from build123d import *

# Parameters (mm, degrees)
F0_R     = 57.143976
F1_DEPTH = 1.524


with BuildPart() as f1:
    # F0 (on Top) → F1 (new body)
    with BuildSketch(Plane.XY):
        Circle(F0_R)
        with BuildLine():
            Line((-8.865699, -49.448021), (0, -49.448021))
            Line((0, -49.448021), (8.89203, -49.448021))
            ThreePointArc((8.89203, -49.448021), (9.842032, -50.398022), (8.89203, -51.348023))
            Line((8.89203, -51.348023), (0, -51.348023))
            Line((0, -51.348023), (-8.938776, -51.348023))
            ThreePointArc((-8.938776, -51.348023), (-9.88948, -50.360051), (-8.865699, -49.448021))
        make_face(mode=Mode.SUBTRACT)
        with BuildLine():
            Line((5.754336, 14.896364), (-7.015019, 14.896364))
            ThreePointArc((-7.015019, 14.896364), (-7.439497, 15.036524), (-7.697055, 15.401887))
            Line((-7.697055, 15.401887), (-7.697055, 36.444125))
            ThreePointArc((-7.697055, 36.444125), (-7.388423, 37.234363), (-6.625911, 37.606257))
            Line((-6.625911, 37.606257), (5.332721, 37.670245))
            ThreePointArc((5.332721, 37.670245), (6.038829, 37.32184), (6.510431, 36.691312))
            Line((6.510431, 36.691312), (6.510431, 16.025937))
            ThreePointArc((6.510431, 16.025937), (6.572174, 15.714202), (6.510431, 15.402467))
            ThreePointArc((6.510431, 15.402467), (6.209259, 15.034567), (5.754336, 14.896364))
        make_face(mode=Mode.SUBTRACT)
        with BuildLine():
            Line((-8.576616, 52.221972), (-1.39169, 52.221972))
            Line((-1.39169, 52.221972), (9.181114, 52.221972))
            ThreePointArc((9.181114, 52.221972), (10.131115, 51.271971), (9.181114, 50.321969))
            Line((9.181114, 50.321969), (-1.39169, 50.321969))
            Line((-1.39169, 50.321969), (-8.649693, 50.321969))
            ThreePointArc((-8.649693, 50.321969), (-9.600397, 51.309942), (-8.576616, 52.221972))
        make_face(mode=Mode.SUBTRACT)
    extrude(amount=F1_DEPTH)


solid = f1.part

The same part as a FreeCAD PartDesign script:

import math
import FreeCAD as App
import Part
import Sketcher
from FreeCAD import Vector

doc = App.newDocument("Part")
params = doc.addObject("Spreadsheet::Sheet", "Params")
for row, (alias, value) in enumerate([
    ("pad1_length", "0.06 in"),
], start=1):
    params.set(f"A{row}", alias)
    params.set(f"B{row}", "=" + value)
    params.setAlias(f"B{row}", alias)

body = doc.addObject("PartDesign::Body", "Body")

sketch1 = body.newObject("Sketcher::SketchObject", "Sketch")
sketch1.AttachmentSupport = (doc.getObject("XY_Plane"), [""])
sketch1.MapMode = "FlatFace"
sketch1.addGeometry(Part.Circle(Vector(0, 0, 0), Vector(0, 0, 1), 57.1), False)
sketch1.addGeometry(Part.ArcOfCircle(Part.Circle(Vector(-8.9, -50.4, 0), Vector(0, 0, 1), 1), math.radians(86), math.radians(270)), False)
sketch1.addGeometry(Part.LineSegment(Vector(-8.9, -49.4, 0), Vector(8.9, -49.4, 0)), False)
sketch1.addGeometry(Part.ArcOfCircle(Part.Circle(Vector(8.9, -50.4, 0), Vector(0, 0, 1), 1), math.radians(-90), math.radians(90)), False)
sketch1.addGeometry(Part.LineSegment(Vector(8.9, -51.3, 0), Vector(-8.9, -51.3, 0)), False)
sketch1.addGeometry(Part.ArcOfCircle(Part.Circle(Vector(5.8, 15.7, 0), Vector(0, 0, 1), 0.8), math.radians(-90), math.radians(-22)), False)
sketch1.addGeometry(Part.LineSegment(Vector(5.8, 14.9, 0), Vector(-7, 14.9, 0)), False)
sketch1.addGeometry(Part.ArcOfCircle(Part.Circle(Vector(-7, 15.6, 0), Vector(0, 0, 1), 0.7), math.radians(-163), math.radians(-90)), False)
sketch1.addGeometry(Part.LineSegment(Vector(-7.7, 15.4, 0), Vector(-7.7, 36.4, 0)), False)
sketch1.addGeometry(Part.ArcOfCircle(Part.Circle(Vector(-6.5, 36.4, 0), Vector(0, 0, 1), 1.2), math.radians(95), math.radians(180)), False)
sketch1.addGeometry(Part.LineSegment(Vector(-6.6, 37.6, 0), Vector(5.3, 37.7, 0)), False)
sketch1.addGeometry(Part.ArcOfCircle(Part.Circle(Vector(5, 36, 0), Vector(0, 0, 1), 1.7), math.radians(23), math.radians(77)), False)
sketch1.addGeometry(Part.LineSegment(Vector(6.5, 36.7, 0), Vector(6.5, 16, 0)), False)
sketch1.addGeometry(Part.ArcOfCircle(Part.Circle(Vector(5.8, 15.7, 0), Vector(0, 0, 1), 0.8), math.radians(-22), math.radians(22)), False)
sketch1.addGeometry(Part.ArcOfCircle(Part.Circle(Vector(-8.6, 51.3, 0), Vector(0, 0, 1), 1), math.radians(86), math.radians(270)), False)
sketch1.addGeometry(Part.LineSegment(Vector(-8.6, 52.2, 0), Vector(9.2, 52.2, 0)), False)
sketch1.addGeometry(Part.ArcOfCircle(Part.Circle(Vector(9.2, 51.3, 0), Vector(0, 0, 1), 1), math.radians(-90), math.radians(90)), False)
sketch1.addGeometry(Part.LineSegment(Vector(9.2, 50.3, 0), Vector(-8.6, 50.3, 0)), False)
sketch1.addConstraint(Sketcher.Constraint("Coincident", 1, 1, 2, 1))
sketch1.addConstraint(Sketcher.Constraint("Tangent", 2, 2, 3, 2))
sketch1.addConstraint(Sketcher.Constraint("Tangent", 3, 1, 4, 1))
sketch1.addConstraint(Sketcher.Constraint("Tangent", 4, 2, 1, 2))
sketch1.addConstraint(Sketcher.Constraint("Tangent", 5, 1, 6, 1))
sketch1.addConstraint(Sketcher.Constraint("Tangent", 6, 2, 7, 2))
sketch1.addConstraint(Sketcher.Constraint("Coincident", 7, 1, 8, 1))
sketch1.addConstraint(Sketcher.Constraint("Coincident", 8, 2, 9, 2))
sketch1.addConstraint(Sketcher.Constraint("Coincident", 9, 1, 10, 1))
sketch1.addConstraint(Sketcher.Constraint("Coincident", 10, 2, 11, 2))
sketch1.addConstraint(Sketcher.Constraint("Coincident", 11, 1, 12, 1))
sketch1.addConstraint(Sketcher.Constraint("Coincident", 12, 2, 13, 2))
sketch1.addConstraint(Sketcher.Constraint("Coincident", 13, 1, 5, 2))
sketch1.addConstraint(Sketcher.Constraint("Coincident", 14, 1, 15, 1))
sketch1.addConstraint(Sketcher.Constraint("Tangent", 15, 2, 16, 2))
sketch1.addConstraint(Sketcher.Constraint("Tangent", 16, 1, 17, 1))
sketch1.addConstraint(Sketcher.Constraint("Tangent", 17, 2, 14, 2))
sketch1.addConstraint(Sketcher.Constraint("Horizontal", 2))
sketch1.addConstraint(Sketcher.Constraint("Horizontal", 4))
sketch1.addConstraint(Sketcher.Constraint("Horizontal", 6))
sketch1.addConstraint(Sketcher.Constraint("Vertical", 8))
sketch1.addConstraint(Sketcher.Constraint("Vertical", 12))
sketch1.addConstraint(Sketcher.Constraint("Horizontal", 15))
sketch1.addConstraint(Sketcher.Constraint("Horizontal", 17))
sketch1.addConstraint(Sketcher.Constraint("Coincident", 0, 3, -1, 1))
sketch1.addConstraint(Sketcher.Constraint("Coincident", 13, 3, 5, 3))
sketch1.addConstraint(Sketcher.Constraint("Equal", 1, 14))
sketch1.addConstraint(Sketcher.Constraint("Equal", 3, 16))
sketch1.addConstraint(Sketcher.Constraint("Vertical", 12, 2, 13, 1))
sketch1.addConstraint(Sketcher.Constraint("Equal", 2, 15))
sketch1.addConstraint(Sketcher.Constraint("Radius", 3, 0.950001))
sketch1.addConstraint(Sketcher.Constraint("Diameter", 0, 114.287952))
sketch1.addConstraint(Sketcher.Constraint("Radius", 1, 0.951406))
sketch1.addConstraint(Sketcher.Constraint("Radius", 5, 0.817838))
sketch1.addConstraint(Sketcher.Constraint("Radius", 7, 0.712854))
sketch1.addConstraint(Sketcher.Constraint("Radius", 9, 1.165994))
sketch1.addConstraint(Sketcher.Constraint("Radius", 11, 1.689947))
sketch1.addConstraint(Sketcher.Constraint("DistanceX", 2, 1, 2, 2, 17.757729))
sketch1.addConstraint(Sketcher.Constraint("DistanceY", -1, 1, 5, 3, 15.714202))
sketch1.addConstraint(Sketcher.Constraint("DistanceX", 1, 1, -1, 1, 8.865699))
sketch1.addConstraint(Sketcher.Constraint("DistanceX", 6, 2, 6, 1, 12.769355))
sketch1.addConstraint(Sketcher.Constraint("DistanceY", 8, 1, 8, 2, 21.042238))
sketch1.addConstraint(Sketcher.Constraint("DistanceY", 12, 2, 12, 1, 20.665375))
sketch1.addConstraint(Sketcher.Constraint("DistanceY", 3, 3, -1, 1, 50.398022))
sketch1.addConstraint(Sketcher.Constraint("DistanceX", 7, 3, -1, 1, 7.015018))
sketch1.addConstraint(Sketcher.Constraint("DistanceX", 9, 3, -1, 1, 6.531061))
sketch1.addConstraint(Sketcher.Constraint("DistanceY", -1, 1, 16, 3, 51.271971))
sketch1.addConstraint(Sketcher.Constraint("DistanceX", 9, 1, -1, 1, 6.625911))
sketch1.addConstraint(Sketcher.Constraint("DistanceX", -1, 1, 10, 2, 5.332721))
sketch1.addConstraint(Sketcher.Constraint("DistanceX", -1, 1, 11, 1, 6.510431))
sketch1.addConstraint(Sketcher.Constraint("DistanceY", 7, 3, 9, 3, 20.83491))
sketch1.addConstraint(Sketcher.Constraint("DistanceY", 11, 3, 9, 3, 0.421892))
sketch1.addConstraint(Sketcher.Constraint("DistanceX", 14, 3, 11, 3, 13.608268))
pad1 = body.newObject("PartDesign::Pad", "Pad")
pad1.Profile = sketch1
pad1.setExpression("Length", "Params.pad1_length")

doc.recompute()
